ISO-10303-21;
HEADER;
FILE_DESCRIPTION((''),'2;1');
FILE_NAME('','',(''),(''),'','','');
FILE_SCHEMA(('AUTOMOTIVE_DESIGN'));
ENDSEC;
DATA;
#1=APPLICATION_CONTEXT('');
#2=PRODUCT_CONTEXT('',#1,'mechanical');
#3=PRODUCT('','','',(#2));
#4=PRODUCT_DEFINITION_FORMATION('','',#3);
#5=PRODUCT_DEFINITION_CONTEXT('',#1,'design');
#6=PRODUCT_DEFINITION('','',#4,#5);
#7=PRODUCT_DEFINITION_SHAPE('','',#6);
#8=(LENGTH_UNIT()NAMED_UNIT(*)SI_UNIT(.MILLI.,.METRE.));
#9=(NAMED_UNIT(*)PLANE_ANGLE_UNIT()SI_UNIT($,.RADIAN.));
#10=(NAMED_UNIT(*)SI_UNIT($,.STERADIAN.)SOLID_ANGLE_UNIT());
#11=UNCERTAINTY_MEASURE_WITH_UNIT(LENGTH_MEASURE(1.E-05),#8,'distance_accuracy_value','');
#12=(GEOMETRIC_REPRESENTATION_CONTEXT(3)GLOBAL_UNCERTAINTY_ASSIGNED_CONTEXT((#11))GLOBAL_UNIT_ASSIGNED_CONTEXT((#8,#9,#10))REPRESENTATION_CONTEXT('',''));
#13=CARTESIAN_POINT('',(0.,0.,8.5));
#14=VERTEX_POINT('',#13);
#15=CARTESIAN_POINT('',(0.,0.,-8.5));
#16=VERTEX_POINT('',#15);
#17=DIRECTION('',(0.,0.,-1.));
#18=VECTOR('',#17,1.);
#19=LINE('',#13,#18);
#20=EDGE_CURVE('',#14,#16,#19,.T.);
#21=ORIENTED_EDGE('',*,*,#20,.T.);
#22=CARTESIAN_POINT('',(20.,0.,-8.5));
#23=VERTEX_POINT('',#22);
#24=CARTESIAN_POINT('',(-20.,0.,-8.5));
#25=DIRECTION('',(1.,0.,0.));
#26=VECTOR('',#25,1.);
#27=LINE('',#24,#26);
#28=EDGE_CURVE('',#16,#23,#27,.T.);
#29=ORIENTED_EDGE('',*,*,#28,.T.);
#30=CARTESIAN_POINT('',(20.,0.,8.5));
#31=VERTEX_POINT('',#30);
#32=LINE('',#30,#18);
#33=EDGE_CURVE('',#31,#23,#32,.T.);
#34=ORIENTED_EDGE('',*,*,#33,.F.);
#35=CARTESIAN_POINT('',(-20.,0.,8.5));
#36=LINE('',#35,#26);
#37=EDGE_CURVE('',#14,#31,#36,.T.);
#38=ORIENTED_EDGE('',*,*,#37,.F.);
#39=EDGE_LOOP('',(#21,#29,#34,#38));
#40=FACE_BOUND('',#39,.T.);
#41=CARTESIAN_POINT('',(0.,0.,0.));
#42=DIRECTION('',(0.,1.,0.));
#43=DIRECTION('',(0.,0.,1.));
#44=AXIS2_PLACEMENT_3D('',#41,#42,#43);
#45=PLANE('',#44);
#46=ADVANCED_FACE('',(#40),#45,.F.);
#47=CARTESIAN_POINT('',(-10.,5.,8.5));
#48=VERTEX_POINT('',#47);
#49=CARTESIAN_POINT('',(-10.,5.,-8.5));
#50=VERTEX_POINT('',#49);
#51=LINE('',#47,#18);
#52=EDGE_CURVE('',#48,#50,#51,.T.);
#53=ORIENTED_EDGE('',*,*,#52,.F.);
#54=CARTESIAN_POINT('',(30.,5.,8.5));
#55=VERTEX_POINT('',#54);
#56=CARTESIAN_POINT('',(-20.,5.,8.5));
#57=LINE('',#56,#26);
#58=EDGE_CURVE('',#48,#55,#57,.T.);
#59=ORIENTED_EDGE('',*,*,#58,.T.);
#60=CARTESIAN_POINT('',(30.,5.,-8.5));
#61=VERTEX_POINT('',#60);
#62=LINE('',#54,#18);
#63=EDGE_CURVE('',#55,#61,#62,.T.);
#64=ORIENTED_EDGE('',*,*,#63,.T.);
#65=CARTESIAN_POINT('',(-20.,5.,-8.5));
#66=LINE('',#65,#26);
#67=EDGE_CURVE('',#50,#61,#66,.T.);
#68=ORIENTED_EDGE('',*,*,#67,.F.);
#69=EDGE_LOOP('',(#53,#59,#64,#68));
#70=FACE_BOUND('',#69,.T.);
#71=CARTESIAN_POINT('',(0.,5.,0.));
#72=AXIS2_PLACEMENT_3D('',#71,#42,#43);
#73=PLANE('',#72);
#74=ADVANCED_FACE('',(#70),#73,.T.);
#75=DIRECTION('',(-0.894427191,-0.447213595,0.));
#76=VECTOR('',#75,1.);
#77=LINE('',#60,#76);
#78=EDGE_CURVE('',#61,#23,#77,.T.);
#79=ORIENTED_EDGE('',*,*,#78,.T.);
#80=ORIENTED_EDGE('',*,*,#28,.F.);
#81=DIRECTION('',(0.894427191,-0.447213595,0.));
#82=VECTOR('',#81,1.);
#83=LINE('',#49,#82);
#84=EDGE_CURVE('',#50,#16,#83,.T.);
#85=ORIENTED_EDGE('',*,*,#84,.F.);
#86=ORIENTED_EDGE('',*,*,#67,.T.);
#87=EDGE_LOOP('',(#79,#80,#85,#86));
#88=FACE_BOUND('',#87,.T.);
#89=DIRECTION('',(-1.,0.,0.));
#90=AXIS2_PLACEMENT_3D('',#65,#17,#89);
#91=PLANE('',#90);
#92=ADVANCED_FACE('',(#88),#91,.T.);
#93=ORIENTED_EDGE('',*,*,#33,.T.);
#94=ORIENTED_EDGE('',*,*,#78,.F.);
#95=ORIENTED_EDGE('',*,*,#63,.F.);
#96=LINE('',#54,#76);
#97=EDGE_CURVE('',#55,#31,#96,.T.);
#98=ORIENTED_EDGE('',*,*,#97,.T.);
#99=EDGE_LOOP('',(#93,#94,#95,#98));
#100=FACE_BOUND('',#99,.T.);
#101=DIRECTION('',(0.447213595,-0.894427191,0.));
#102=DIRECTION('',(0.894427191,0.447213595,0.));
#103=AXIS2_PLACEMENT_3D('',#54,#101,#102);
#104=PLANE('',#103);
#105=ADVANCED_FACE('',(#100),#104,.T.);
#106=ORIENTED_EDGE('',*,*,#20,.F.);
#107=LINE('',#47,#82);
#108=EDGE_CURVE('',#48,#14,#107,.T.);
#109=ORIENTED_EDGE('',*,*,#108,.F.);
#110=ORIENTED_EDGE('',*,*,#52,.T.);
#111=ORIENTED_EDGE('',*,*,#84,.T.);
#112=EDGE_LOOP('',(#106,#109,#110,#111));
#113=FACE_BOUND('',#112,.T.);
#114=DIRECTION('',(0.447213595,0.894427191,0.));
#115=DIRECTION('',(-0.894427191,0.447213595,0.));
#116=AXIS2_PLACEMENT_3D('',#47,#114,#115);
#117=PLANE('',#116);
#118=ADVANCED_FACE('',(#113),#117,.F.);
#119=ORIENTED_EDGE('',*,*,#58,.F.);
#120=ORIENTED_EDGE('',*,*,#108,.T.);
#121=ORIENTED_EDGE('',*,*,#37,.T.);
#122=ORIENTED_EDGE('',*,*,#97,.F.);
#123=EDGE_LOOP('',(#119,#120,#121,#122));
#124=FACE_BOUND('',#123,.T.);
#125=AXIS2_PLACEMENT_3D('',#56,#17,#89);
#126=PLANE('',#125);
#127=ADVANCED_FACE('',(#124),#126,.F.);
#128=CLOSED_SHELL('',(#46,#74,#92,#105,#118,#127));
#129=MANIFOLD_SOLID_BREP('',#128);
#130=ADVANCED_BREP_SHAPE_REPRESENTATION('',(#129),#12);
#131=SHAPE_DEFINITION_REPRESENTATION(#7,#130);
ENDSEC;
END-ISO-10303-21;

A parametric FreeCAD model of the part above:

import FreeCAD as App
import Part
import Sketcher
Q = App.Units.Quantity

doc = App.newDocument("Part")
body = doc.addObject("PartDesign::Body", "Body")

# Sketch on XZ plane
sketch1 = body.newObject("Sketcher::SketchObject", "Sketch")
sketch1.AttachmentSupport = (doc.getObject("XZ_Plane"), [""])
sketch1.MapMode = "FlatFace"
sketch1.addGeometry([
    Part.LineSegment(App.Vector(-20, -8, 0), App.Vector(-20, 8, 0)),
    Part.LineSegment(App.Vector(-20, 8, 0), App.Vector(20, 8, 0)),
    Part.LineSegment(App.Vector(20, 8, 0), App.Vector(20, -8, 0)),
    Part.LineSegment(App.Vector(20, -8, 0), App.Vector(-20, -8, 0)),
], False)
sketch1.addConstraint([
    Sketcher.Constraint("Coincident", 0, 2, 1, 1),
    Sketcher.Constraint("Coincident", 1, 2, 2, 1),
    Sketcher.Constraint("Coincident", 2, 2, 3, 1),
    Sketcher.Constraint("Coincident", 3, 2, 0, 1),
    Sketcher.Constraint("Vertical", 0),
    Sketcher.Constraint("Horizontal", 1),
    Sketcher.Constraint("Vertical", 2),
    Sketcher.Constraint("Horizontal", 3),
    Sketcher.Constraint("Symmetric", 0, 2, 2, 2, -1, 1),
    Sketcher.Constraint("DistanceX", 1, 1, 1, 2, Q("40 mm")),
    Sketcher.Constraint("DistanceY", 0, 1, 0, 2, Q("17 mm")),
])
pad1 = body.newObject("PartDesign::Pad", "Pad")
pad1.Profile = sketch1
pad1.Length = 5
pad1.Reversed = True

# Sketch on XY plane
sketch2 = body.newObject("Sketcher::SketchObject", "Sketch001")
sketch2.AttachmentSupport = (doc.getObject("XY_Plane"), [""])
sketch2.MapMode = "FlatFace"
sketch2.AttachmentOffset = App.Placement(App.Vector(0, 0, 8.5), App.Rotation())
sketch2.addGeometry([
    Part.LineSegment(App.Vector(-20, 5, 0), App.Vector(-20, 0, 0)),
    Part.LineSegment(App.Vector(-20, 0, 0), App.Vector(-10, 0, 0)),
    Part.LineSegment(App.Vector(-10, 0, 0), App.Vector(-5, 5, 0)),
    Part.LineSegment(App.Vector(-5, 5, 0), App.Vector(-20, 5, 0)),
], False)
sketch2.addConstraint([
    Sketcher.Constraint("Coincident", 0, 2, 1, 1),
    Sketcher.Constraint("Coincident", 1, 2, 2, 1),
    Sketcher.Constraint("Coincident", 2, 2, 3, 1),
    Sketcher.Constraint("Coincident", 3, 2, 0, 1),
    Sketcher.Constraint("Vertical", 0),
    Sketcher.Constraint("Horizontal", 1),
    Sketcher.Constraint("Horizontal", 3),
    Sketcher.Constraint("PointOnObject", 0, 2, -1),
    Sketcher.Constraint("DistanceX", 1, 1, 1, 2, Q("10 mm")),
    Sketcher.Constraint("DistanceX", 3, 2, 3, 1, Q("15 mm")),
    Sketcher.Constraint("DistanceY", 0, 2, 0, 1, Q("5 mm")),
    Sketcher.Constraint("DistanceX", 0, 2, -1, 1, Q("20 mm")),
])
pocket1 = body.newObject("PartDesign::Pocket", "Pocket")
pocket1.Profile = sketch2
pocket1.Length = 40

# Sketch on XY plane
sketch3 = body.newObject("Sketcher::SketchObject", "Sketch002")
sketch3.AttachmentSupport = (doc.getObject("XY_Plane"), [""])
sketch3.MapMode = "FlatFace"
sketch3.AttachmentOffset = App.Placement(App.Vector(0, 0, -8.5), App.Rotation())
sketch3.addGeometry([
    Part.LineSegment(App.Vector(-10, 0, 0), App.Vector(-10, 5, 0)),
    Part.LineSegment(App.Vector(-10, 5, 0), App.Vector(-5, 5, 0)),
    Part.LineSegment(App.Vector(-5, 5, 0), App.Vector(-10, 0, 0)),
], False)
sketch3.addConstraint([
    Sketcher.Constraint("Coincident", 0, 2, 1, 1),
    Sketcher.Constraint("Coincident", 1, 2, 2, 1),
    Sketcher.Constraint("Coincident", 2, 2, 0, 1),
    Sketcher.Constraint("Vertical", 0),
    Sketcher.Constraint("Horizontal", 1),
    Sketcher.Constraint("PointOnObject", 2, 2, -1),
    Sketcher.Constraint("Equal", 1, 0),
    Sketcher.Constraint("DistanceX", 1, 1, 1, 2, Q("5 mm")),
    Sketcher.Constraint("DistanceX", 0, 2, -1, 1, Q("10 mm")),
])
pad2 = body.newObject("PartDesign::Pad", "Pad001")
pad2.Profile = sketch3
pad2.Length = 17

# Sketch on XY plane
sketch4 = body.newObject("Sketcher::SketchObject", "Sketch003")
sketch4.AttachmentSupport = (doc.getObject("XY_Plane"), [""])
sketch4.MapMode = "FlatFace"
sketch4.AttachmentOffset = App.Placement(App.Vector(0, 0, -8.5), App.Rotation())
sketch4.addGeometry([
    Part.LineSegment(App.Vector(-10, 5, 0), App.Vector(0, 0, 0)),
    Part.LineSegment(App.Vector(0, 0, 0), App.Vector(-10, 0, 0)),
    Part.LineSegment(App.Vector(-10, 0, 0), App.Vector(-10, 5, 0)),
], False)
sketch4.addConstraint([
    Sketcher.Constraint("Coincident", 0, 2, 1, 1),
    Sketcher.Constraint("Coincident", 1, 2, 2, 1),
    Sketcher.Constraint("Coincident", 2, 2, 0, 1),
    Sketcher.Constraint("Horizontal", 1),
    Sketcher.Constraint("Vertical", 2),
    Sketcher.Constraint("Coincident", 0, 2, -1, 1),
    Sketcher.Constraint("DistanceX", 1, 2, 1, 1, Q("10 mm")),
    Sketcher.Constraint("DistanceY", 2, 1, 2, 2, Q("5 mm")),
])
pocket2 = body.newObject("PartDesign::Pocket", "Pocket001")
pocket2.Profile = sketch4
pocket2.Length = 17
pocket2.Reversed = True

# Sketch on XY plane
sketch5 = body.newObject("Sketcher::SketchObject", "Sketch004")
sketch5.AttachmentSupport = (doc.getObject("XY_Plane"), [""])
sketch5.MapMode = "FlatFace"
sketch5.AttachmentOffset = App.Placement(App.Vector(0, 0, -8.5), App.Rotation())
sketch5.addGeometry([
    Part.LineSegment(App.Vector(20, 5, 0), App.Vector(30, 5, 0)),
    Part.LineSegment(App.Vector(30, 5, 0), App.Vector(20, 0, 0)),
    Part.LineSegment(App.Vector(20, 0, 0), App.Vector(20, 5, 0)),
], False)
sketch5.addConstraint([
    Sketcher.Constraint("Coincident", 0, 2, 1, 1),
    Sketcher.Constraint("Coincident", 1, 2, 2, 1),
    Sketcher.Constraint("Coincident", 2, 2, 0, 1),
    Sketcher.Constraint("Horizontal", 0),
    Sketcher.Constraint("Vertical", 2),
    Sketcher.Constraint("PointOnObject", 1, 2, -1),
    Sketcher.Constraint("DistanceX", 0, 1, 0, 2, Q("10 mm")),
    Sketcher.Constraint("DistanceY", 2, 1, 2, 2, Q("5 mm")),
    Sketcher.Constraint("DistanceX", -1, 1, 0, 2, Q("30 mm")),
])
pad3 = body.newObject("PartDesign::Pad", "Pad002")
pad3.Profile = sketch5
pad3.Length = 17

doc.recompute()
